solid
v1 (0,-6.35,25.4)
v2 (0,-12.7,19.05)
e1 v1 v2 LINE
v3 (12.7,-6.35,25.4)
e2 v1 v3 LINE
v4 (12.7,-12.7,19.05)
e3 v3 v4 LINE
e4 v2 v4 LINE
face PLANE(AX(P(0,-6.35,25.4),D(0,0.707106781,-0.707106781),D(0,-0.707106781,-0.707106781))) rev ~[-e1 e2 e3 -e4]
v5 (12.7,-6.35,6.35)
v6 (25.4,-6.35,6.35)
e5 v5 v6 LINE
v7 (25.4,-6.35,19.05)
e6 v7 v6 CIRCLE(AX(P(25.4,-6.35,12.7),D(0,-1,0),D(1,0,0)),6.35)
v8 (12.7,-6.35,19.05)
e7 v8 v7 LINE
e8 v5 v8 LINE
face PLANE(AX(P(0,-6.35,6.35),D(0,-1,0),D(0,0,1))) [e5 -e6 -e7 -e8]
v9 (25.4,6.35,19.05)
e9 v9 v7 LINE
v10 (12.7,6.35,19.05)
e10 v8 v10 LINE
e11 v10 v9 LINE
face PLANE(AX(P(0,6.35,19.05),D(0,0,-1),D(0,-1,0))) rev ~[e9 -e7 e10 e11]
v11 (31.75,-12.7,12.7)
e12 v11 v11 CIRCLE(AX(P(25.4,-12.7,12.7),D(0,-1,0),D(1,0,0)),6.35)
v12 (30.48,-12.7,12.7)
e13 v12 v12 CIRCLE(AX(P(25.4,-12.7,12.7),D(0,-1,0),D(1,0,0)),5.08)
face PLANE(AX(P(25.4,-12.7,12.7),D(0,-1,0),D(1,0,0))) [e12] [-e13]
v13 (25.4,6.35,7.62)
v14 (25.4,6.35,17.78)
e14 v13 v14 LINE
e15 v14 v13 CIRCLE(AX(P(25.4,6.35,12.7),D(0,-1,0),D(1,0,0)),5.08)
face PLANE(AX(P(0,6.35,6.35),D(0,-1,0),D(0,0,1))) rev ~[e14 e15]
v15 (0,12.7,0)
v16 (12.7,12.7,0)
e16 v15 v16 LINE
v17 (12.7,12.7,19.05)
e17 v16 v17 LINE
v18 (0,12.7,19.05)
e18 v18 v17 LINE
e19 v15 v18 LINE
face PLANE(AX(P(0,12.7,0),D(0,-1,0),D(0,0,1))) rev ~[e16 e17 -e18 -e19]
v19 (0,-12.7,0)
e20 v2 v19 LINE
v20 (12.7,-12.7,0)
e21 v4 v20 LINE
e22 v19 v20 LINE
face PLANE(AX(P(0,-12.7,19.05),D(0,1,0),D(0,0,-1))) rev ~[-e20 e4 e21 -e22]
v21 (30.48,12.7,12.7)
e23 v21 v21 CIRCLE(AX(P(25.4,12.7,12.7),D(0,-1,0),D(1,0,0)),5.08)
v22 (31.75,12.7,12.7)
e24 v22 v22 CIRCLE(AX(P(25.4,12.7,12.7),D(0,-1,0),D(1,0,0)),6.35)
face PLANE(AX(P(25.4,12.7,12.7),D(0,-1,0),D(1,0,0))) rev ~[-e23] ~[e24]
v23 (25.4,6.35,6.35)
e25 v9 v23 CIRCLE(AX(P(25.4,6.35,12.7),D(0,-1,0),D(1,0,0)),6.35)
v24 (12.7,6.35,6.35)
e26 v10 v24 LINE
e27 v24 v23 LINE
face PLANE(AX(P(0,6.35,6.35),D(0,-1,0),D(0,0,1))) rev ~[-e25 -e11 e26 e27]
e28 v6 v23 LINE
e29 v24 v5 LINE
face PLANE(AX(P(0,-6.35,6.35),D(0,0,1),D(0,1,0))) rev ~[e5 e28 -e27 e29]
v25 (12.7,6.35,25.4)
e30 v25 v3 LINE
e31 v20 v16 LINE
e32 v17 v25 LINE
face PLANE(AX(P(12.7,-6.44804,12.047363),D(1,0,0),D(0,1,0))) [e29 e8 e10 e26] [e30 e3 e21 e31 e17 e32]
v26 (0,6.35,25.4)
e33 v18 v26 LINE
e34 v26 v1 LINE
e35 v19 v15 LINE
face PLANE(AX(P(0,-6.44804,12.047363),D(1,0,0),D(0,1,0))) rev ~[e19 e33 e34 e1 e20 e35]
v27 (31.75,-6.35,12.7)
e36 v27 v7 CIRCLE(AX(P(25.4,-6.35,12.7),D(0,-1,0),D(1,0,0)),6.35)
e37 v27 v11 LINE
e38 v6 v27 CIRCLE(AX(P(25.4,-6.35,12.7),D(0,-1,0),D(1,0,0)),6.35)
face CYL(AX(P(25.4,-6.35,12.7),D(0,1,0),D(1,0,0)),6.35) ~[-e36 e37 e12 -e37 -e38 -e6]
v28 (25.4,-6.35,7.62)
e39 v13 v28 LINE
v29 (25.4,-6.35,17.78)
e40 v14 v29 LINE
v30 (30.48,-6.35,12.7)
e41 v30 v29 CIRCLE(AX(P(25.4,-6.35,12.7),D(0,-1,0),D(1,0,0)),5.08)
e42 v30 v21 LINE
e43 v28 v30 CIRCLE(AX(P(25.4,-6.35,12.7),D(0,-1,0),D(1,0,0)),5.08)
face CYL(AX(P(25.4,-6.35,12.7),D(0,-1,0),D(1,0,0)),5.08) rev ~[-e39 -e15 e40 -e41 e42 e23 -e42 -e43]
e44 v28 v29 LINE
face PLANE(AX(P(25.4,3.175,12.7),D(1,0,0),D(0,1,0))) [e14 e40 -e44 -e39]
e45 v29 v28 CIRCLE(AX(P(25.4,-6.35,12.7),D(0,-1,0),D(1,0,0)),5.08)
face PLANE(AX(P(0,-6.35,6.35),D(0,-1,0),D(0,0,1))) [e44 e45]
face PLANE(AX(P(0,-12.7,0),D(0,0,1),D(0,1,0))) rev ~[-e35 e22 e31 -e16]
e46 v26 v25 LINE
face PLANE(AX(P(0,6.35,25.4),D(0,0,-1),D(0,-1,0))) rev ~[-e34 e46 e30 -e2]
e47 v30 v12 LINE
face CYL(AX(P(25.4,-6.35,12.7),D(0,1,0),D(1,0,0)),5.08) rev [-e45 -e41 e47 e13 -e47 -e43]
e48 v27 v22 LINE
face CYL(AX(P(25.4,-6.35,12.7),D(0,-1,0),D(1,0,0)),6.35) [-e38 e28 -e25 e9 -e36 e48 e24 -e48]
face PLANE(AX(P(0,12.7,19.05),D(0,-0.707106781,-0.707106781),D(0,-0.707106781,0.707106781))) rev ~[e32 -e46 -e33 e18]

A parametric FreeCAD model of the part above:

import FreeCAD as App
import Part
import Sketcher
Q = App.Units.Quantity


def add_polygon(sketch, points):
    """Adds a closed chain of lines whose ends are joined by coincident constraints."""
    first, n = sketch.GeometryCount, len(points)
    for a, b in zip(points, points[1:] + points[:1]):
        sketch.addGeometry(Part.LineSegment(App.Vector(*a, 0), App.Vector(*b, 0)), False)
    for i in range(n):
        sketch.addConstraint(Sketcher.Constraint("Coincident", first + i, 2, first + (i + 1) % n, 1))

doc = App.newDocument("Part")
body = doc.addObject("PartDesign::Body", "Body")

# Sketch on YZ plane
sketch1 = body.newObject("Sketcher::SketchObject", "Sketch")
sketch1.AttachmentSupport = (doc.getObject("YZ_Plane"), [""])
sketch1.MapMode = "FlatFace"
add_polygon(sketch1, [(-6, 25), (-13, 19), (-13, 0), (13, 0), (13, 19), (6, 25)])  # lines 0-5
add_polygon(sketch1, [(-6, 19), (6, 19), (6, 6), (-6, 6)])  # lines 6-9
sketch1.addConstraint([
    Sketcher.Constraint("Vertical", 1),
    Sketcher.Constraint("Horizontal", 2),
    Sketcher.Constraint("Vertical", 3),
    Sketcher.Constraint("Horizontal", 5),
    Sketcher.Constraint("Horizontal", 6),
    Sketcher.Constraint("Vertical", 7),
    Sketcher.Constraint("Horizontal", 8),
    Sketcher.Constraint("Vertical", 9),
    Sketcher.Constraint("Symmetric", 1, 2, 2, 2, -1, 1),
    Sketcher.Constraint("Perpendicular", 0, 4),
    Sketcher.Constraint("Horizontal", 0, 2, 3, 2),
    Sketcher.Constraint("Horizontal", 3, 2, 6, 2),
    Sketcher.Constraint("Vertical", 4, 2, 6, 2),
    Sketcher.Constraint("Vertical", 5, 2, 8, 2),
    Sketcher.Constraint("Equal", 8, 7),
    Sketcher.Constraint("Equal", 0, 4),
    Sketcher.Constraint("DistanceX", 2, 1, 2, 2, Q("1 in")),
    Sketcher.Constraint("DistanceX", 5, 2, 5, 1, Q("0.5 in")),
    Sketcher.Constraint("DistanceY", -1, 1, 4, 2, Q("1 in")),
])
pad1 = body.newObject("PartDesign::Pad", "Pad")
pad1.Profile = sketch1
pad1.Length = Q("0.5 in")

# Sketch on YZ plane
sketch2 = body.newObject("Sketcher::SketchObject", "Sketch001")
sketch2.AttachmentSupport = (doc.getObject("YZ_Plane"), [""])
sketch2.MapMode = "FlatFace"
add_polygon(sketch2, [(6, 6), (6, 19), (-6, 19), (-6, 6)])  # lines 0-3
sketch2.addConstraint([
    Sketcher.Constraint("Vertical", 0),
    Sketcher.Constraint("Horizontal", 1),
    Sketcher.Constraint("Vertical", 2),
    Sketcher.Constraint("Horizontal", 3),
    Sketcher.Constraint("Equal", 3, 0),
    Sketcher.Constraint("DistanceX", 1, 2, 1, 1, Q("0.5 in")),
    Sketcher.Constraint("DistanceX", -1, 1, 0, 2, Q("0.25 in")),
    Sketcher.Constraint("DistanceY", -1, 1, 0, 2, Q("0.75 in")),
])
pad2 = body.newObject("PartDesign::Pad", "Pad001")
pad2.Profile = sketch2
pad2.Length = Q("1 in")

# Sketch on XZ plane
sketch3 = body.newObject("Sketcher::SketchObject", "Sketch002")
sketch3.AttachmentSupport = (doc.getObject("XZ_Plane"), [""])
sketch3.MapMode = "FlatFace"
sketch3.AttachmentOffset = App.Placement(App.Vector(0, 0, 0.25 * 25.4), App.Rotation())
sketch3.addGeometry([
    Part.Circle(App.Vector(25, 13, 0), App.Vector(0, 0, 1), 6),
    Part.Circle(App.Vector(25, 13, 0), App.Vector(0, 0, 1), 5),
], False)
sketch3.addConstraint([
    Sketcher.Constraint("Coincident", 1, 3, 0, 3),
    Sketcher.Constraint("Diameter", 0, Q("0.5 in")),
    Sketcher.Constraint("Diameter", 1, Q("0.4 in")),
    Sketcher.Constraint("DistanceX", -1, 1, 0, 3, Q("1 in")),
    Sketcher.Constraint("DistanceY", -1, 1, 0, 3, Q("0.5 in")),
])
pad3 = body.newObject("PartDesign::Pad", "Pad002")
pad3.Profile = sketch3
pad3.Type = "TwoLengths"
pad3.Length = Q("0.25 in")
pad3.Length2 = Q("0.75 in")

doc.recompute()
